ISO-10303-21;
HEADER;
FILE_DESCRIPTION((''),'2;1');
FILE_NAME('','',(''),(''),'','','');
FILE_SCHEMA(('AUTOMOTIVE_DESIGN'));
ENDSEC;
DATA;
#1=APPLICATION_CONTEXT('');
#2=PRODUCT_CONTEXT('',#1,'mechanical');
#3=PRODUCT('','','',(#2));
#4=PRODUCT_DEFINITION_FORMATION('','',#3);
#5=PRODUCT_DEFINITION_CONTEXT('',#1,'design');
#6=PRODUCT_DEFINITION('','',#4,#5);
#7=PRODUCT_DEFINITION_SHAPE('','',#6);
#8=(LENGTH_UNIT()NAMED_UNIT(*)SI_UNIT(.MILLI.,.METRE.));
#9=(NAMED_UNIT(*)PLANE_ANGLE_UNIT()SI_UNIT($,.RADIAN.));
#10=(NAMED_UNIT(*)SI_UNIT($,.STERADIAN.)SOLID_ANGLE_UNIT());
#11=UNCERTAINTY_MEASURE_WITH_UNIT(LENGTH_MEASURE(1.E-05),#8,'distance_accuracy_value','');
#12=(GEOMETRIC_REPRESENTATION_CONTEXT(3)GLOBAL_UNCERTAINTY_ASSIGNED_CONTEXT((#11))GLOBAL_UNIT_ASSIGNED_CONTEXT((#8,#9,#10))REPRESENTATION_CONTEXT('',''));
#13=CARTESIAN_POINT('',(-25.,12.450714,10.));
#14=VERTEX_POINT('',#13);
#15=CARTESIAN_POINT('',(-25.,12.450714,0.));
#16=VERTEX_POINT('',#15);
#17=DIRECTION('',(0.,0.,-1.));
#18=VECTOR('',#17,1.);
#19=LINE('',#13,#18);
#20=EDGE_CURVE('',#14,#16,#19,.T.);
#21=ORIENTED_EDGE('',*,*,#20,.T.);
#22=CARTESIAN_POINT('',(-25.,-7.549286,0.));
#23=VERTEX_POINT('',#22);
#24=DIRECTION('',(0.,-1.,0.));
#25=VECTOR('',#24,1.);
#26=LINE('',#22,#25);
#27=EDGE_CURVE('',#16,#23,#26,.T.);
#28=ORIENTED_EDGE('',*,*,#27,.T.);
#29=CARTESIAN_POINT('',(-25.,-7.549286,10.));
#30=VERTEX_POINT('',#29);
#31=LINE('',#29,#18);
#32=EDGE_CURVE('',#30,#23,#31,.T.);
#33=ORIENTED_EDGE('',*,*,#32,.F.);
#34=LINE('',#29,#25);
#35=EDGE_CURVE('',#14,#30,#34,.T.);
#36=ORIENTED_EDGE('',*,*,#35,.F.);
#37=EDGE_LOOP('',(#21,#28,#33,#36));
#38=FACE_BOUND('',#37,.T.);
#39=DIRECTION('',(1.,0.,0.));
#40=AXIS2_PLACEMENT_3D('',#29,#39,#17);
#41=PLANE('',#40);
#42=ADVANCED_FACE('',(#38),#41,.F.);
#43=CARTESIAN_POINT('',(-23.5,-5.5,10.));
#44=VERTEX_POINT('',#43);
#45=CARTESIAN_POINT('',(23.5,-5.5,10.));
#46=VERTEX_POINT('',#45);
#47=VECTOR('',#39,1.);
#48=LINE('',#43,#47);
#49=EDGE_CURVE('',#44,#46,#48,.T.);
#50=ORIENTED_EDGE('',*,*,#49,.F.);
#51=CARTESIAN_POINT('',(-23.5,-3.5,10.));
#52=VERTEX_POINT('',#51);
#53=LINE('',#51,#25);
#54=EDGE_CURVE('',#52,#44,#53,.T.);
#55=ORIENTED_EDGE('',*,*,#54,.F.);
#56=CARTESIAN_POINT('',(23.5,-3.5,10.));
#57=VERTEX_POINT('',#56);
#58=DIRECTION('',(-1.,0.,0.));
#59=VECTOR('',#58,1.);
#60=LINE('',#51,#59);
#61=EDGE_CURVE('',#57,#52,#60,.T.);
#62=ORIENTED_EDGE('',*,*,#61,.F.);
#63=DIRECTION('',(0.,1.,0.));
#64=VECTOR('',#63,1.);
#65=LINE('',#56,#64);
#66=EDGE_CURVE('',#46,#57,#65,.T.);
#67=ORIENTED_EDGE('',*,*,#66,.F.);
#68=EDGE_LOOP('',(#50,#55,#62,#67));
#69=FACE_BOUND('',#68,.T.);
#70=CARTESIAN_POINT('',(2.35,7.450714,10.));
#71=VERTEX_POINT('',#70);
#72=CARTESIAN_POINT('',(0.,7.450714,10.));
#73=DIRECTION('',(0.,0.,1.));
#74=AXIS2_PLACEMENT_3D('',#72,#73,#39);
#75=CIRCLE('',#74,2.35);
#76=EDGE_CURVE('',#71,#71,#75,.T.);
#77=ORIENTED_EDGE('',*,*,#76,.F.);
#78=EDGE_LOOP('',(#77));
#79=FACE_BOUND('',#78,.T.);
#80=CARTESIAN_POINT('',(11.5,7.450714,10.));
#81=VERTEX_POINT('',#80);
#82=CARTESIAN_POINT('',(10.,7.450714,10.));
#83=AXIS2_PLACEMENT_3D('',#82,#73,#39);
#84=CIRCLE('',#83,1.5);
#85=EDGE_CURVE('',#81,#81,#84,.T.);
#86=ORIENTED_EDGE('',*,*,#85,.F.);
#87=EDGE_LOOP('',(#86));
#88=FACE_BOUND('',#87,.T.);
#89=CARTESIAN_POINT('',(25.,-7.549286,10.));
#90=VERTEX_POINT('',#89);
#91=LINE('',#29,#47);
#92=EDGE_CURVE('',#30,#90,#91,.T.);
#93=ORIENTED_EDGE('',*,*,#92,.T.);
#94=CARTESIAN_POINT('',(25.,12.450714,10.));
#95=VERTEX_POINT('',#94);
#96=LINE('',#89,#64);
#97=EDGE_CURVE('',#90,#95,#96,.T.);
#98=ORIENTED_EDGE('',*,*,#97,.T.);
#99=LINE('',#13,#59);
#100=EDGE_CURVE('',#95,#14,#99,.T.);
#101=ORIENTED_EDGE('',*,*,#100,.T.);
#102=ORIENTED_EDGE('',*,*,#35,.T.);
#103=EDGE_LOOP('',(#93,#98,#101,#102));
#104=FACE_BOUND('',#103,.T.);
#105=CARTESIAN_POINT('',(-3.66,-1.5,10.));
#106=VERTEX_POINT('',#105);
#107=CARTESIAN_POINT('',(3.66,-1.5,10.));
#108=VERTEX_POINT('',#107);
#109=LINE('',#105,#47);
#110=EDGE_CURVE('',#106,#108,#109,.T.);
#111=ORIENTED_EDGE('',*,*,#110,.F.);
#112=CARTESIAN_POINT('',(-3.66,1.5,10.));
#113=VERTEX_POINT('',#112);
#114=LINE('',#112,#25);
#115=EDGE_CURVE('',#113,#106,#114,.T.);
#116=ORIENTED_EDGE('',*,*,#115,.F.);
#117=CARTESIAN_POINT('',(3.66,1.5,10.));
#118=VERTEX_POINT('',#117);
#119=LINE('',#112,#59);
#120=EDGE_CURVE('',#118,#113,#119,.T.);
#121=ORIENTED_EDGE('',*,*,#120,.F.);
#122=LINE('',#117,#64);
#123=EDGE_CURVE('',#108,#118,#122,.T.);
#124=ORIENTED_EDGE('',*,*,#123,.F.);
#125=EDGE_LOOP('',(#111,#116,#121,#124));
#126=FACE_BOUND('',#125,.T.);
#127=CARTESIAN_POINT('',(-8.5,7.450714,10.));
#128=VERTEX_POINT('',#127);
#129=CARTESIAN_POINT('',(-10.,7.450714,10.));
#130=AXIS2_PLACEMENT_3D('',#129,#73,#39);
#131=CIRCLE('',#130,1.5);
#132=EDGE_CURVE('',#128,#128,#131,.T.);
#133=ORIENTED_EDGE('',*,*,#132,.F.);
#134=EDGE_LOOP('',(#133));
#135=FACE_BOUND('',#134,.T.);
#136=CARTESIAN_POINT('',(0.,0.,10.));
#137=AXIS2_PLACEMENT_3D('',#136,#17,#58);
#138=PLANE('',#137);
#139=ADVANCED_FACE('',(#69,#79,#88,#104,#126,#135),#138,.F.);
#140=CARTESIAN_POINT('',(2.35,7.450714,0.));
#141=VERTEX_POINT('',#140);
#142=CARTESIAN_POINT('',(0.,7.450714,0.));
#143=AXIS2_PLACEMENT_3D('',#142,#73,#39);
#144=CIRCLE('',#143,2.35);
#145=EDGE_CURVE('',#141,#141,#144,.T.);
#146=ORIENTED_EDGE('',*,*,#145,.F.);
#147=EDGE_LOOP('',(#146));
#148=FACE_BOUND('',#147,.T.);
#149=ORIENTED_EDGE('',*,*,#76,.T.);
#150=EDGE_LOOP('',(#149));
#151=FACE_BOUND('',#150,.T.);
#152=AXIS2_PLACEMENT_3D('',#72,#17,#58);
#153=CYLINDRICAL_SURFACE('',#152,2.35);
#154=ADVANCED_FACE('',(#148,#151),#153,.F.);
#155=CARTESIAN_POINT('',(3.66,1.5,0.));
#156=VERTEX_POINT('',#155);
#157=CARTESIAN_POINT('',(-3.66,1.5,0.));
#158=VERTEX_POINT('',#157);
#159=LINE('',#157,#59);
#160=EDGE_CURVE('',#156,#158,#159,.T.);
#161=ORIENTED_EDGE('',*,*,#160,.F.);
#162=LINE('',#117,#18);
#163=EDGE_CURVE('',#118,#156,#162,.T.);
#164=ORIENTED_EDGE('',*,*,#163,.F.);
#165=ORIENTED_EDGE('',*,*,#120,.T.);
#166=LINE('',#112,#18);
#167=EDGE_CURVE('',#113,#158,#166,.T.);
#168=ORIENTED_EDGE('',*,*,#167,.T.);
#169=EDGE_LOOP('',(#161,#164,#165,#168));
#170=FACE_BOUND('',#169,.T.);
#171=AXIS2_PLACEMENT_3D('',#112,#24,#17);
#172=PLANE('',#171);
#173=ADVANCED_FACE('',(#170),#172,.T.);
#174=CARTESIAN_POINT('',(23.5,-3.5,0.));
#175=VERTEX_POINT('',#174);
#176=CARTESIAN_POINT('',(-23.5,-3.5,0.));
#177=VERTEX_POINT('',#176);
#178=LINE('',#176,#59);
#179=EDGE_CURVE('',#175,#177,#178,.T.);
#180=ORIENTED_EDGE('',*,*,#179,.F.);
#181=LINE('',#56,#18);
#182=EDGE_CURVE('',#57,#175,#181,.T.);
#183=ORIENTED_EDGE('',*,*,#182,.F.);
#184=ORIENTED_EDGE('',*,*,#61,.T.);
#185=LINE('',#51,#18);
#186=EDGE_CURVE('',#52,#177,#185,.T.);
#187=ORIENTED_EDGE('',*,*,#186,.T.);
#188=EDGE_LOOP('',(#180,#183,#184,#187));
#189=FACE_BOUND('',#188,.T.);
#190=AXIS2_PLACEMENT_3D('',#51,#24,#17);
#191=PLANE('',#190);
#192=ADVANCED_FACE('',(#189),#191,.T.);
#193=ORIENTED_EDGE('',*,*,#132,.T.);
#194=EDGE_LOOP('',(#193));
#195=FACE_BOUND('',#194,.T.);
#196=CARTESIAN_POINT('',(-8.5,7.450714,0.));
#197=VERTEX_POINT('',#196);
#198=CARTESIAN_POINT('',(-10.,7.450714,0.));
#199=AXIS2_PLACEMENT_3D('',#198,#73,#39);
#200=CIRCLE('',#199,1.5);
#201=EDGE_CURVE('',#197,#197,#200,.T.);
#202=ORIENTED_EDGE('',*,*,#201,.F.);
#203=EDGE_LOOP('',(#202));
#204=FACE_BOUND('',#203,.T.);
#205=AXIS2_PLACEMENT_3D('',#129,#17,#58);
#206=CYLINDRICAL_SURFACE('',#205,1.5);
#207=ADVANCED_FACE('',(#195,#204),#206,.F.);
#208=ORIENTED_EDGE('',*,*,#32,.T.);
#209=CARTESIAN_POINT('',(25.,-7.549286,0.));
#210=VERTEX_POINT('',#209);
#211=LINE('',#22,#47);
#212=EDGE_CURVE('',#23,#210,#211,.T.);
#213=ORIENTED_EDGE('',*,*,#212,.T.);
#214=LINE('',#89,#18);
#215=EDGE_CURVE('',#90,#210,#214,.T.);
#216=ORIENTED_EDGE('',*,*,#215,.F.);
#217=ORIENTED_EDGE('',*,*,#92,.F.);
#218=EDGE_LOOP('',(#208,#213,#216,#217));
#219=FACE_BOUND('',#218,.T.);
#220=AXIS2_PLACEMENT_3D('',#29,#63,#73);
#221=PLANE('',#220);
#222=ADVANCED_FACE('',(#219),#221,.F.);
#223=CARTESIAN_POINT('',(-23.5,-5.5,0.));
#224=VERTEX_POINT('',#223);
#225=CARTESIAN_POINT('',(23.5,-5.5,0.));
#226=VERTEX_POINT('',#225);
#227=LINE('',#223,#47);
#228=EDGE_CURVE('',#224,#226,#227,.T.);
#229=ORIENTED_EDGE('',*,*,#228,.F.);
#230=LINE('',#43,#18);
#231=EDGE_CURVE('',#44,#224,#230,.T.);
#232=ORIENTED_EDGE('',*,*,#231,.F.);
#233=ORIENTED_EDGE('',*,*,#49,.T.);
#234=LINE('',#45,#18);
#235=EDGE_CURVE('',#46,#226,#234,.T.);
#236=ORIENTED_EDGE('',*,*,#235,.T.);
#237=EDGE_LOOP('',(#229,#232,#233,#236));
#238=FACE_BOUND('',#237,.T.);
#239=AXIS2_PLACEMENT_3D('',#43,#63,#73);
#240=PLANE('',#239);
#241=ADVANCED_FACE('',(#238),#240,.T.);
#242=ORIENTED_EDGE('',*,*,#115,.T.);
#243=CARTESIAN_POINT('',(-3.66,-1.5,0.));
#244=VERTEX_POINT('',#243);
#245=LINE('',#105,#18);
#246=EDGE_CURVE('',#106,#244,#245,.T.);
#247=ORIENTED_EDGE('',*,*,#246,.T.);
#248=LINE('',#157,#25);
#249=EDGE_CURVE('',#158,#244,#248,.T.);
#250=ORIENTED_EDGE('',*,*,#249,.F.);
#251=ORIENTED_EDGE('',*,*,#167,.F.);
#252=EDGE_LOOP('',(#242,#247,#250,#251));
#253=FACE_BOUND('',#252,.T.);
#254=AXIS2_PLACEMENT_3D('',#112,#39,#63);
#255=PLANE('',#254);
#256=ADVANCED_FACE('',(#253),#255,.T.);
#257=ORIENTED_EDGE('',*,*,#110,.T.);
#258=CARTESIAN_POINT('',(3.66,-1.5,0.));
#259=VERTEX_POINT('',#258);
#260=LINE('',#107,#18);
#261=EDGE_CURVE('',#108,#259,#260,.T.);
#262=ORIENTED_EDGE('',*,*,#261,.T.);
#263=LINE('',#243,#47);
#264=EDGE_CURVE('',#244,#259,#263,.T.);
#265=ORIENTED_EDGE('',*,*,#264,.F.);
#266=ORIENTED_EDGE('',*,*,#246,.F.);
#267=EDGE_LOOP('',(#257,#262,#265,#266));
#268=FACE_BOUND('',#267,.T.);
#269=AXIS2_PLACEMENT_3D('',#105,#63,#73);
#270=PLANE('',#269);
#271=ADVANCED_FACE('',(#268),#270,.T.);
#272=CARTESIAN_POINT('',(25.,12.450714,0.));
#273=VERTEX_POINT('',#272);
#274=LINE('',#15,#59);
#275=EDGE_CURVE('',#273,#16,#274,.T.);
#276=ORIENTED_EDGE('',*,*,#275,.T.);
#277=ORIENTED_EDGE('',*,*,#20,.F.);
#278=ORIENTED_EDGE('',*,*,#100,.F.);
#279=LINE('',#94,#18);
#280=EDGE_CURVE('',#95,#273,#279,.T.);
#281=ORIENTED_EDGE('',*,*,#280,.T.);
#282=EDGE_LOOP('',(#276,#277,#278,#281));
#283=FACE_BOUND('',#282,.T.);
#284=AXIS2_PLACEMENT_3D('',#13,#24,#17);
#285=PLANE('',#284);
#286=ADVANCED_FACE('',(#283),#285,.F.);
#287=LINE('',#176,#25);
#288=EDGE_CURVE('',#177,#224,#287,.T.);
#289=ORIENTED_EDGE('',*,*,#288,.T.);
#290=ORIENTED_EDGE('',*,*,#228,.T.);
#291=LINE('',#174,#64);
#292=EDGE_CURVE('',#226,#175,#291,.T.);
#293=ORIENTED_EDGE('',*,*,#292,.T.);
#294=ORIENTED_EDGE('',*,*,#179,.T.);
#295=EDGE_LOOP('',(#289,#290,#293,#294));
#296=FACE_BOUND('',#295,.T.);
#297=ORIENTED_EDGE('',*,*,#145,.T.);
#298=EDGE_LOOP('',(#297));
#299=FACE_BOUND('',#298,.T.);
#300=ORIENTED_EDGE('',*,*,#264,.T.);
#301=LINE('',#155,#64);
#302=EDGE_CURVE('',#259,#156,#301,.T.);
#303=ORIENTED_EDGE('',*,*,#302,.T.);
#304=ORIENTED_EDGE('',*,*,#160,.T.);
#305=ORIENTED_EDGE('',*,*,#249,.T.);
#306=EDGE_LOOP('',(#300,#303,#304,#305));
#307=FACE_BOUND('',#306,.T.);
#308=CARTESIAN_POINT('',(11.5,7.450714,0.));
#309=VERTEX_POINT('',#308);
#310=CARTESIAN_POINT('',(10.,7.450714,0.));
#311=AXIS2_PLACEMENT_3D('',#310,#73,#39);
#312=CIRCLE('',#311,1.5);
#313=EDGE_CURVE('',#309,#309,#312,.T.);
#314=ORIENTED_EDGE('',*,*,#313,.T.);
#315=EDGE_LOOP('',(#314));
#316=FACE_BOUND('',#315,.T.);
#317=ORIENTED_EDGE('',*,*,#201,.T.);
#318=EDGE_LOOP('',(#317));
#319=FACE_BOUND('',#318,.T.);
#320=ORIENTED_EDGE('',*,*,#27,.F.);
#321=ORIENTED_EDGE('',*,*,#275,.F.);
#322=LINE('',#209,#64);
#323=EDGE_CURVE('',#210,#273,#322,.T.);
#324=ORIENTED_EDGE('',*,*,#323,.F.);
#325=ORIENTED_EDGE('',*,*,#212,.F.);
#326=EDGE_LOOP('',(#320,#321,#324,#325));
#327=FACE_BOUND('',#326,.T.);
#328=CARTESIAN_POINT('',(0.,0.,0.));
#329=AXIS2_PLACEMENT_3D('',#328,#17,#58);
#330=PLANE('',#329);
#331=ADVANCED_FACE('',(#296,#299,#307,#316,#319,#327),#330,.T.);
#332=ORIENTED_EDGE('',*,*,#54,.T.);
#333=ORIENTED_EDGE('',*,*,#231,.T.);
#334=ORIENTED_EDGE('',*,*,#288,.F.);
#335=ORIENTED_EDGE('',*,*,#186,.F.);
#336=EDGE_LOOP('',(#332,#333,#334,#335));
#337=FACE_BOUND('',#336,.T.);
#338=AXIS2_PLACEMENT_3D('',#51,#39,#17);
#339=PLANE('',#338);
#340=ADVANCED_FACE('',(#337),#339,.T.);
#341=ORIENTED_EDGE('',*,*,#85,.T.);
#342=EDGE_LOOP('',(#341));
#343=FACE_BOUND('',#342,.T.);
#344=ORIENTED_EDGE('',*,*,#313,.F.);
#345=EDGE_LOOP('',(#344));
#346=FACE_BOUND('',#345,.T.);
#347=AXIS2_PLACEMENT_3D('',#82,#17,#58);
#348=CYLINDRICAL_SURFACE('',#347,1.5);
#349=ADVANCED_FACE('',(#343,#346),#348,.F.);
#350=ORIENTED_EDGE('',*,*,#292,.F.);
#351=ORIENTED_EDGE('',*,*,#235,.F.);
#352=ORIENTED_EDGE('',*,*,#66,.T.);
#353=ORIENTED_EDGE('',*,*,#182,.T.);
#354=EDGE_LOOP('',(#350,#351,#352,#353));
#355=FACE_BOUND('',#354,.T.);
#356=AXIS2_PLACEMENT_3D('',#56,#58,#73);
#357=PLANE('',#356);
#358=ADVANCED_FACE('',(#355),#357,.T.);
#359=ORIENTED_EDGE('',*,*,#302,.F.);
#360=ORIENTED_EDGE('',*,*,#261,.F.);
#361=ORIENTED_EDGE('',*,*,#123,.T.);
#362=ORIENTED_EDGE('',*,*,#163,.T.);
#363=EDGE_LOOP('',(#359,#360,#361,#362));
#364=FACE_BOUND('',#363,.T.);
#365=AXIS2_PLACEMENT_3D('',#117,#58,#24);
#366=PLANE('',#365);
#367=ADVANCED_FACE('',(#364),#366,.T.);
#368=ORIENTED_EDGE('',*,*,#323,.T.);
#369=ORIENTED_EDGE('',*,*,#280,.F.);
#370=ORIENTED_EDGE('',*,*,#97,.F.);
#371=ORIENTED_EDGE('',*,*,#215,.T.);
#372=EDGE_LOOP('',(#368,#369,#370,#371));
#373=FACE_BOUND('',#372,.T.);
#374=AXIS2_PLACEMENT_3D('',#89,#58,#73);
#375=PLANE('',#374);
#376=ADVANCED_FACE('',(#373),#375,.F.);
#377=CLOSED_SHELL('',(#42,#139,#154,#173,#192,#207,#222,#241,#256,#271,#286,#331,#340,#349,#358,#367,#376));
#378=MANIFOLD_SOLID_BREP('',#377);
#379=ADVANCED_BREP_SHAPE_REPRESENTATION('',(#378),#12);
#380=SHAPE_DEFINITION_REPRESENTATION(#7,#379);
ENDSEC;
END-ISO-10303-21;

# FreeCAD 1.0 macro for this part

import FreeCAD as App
import Part
import Sketcher

doc = App.newDocument("Part")
body = doc.addObject("PartDesign::Body", "Body")

sketch1 = doc.addObject("Sketcher::SketchObject", "Sketch")
body.addObject(sketch1)
sketch1.AttachmentSupport = (doc.XY_Plane, [""])
sketch1.MapMode = "FlatFace"
sketch1.addGeometry([
    Part.LineSegment(App.Vector(-25, 12.5, 0), App.Vector(-25, -7.5, 0)),
    Part.LineSegment(App.Vector(-25, -7.5, 0), App.Vector(25, -7.5, 0)),
    Part.LineSegment(App.Vector(25, -7.5, 0), App.Vector(25, 12.5, 0)),
    Part.LineSegment(App.Vector(25, 12.5, 0), App.Vector(-25, 12.5, 0)),
    Part.LineSegment(App.Vector(23.5, -5.5, 0), App.Vector(-23.5, -5.5, 0)),
    Part.LineSegment(App.Vector(-23.5, -5.5, 0), App.Vector(-23.5, -3.5, 0)),
    Part.LineSegment(App.Vector(-23.5, -3.5, 0), App.Vector(23.5, -3.5, 0)),
    Part.LineSegment(App.Vector(23.5, -3.5, 0), App.Vector(23.5, -5.5, 0)),
    Part.LineSegment(App.Vector(3.7, -1.5, 0), App.Vector(-3.7, -1.5, 0)),
    Part.LineSegment(App.Vector(-3.7, -1.5, 0), App.Vector(-3.7, 1.5, 0)),
    Part.LineSegment(App.Vector(-3.7, 1.5, 0), App.Vector(3.7, 1.5, 0)),
    Part.LineSegment(App.Vector(3.7, 1.5, 0), App.Vector(3.7, -1.5, 0)),
    Part.Circle(App.Vector(-10, 7.5, 0), App.Vector(0, 0, 1), 1.5),
    Part.Circle(App.Vector(0, 7.5, 0), App.Vector(0, 0, 1), 2.4),
    Part.Circle(App.Vector(10, 7.5, 0), App.Vector(0, 0, 1), 1.5),
], False)
sketch1.addConstraint([
    Sketcher.Constraint("Coincident", 0, 2, 1, 1),
    Sketcher.Constraint("Coincident", 1, 2, 2, 1),
    Sketcher.Constraint("Coincident", 2, 2, 3, 1),
    Sketcher.Constraint("Coincident", 3, 2, 0, 1),
    Sketcher.Constraint("Coincident", 4, 2, 5, 1),
    Sketcher.Constraint("Coincident", 5, 2, 6, 1),
    Sketcher.Constraint("Coincident", 6, 2, 7, 1),
    Sketcher.Constraint("Coincident", 7, 2, 4, 1),
    Sketcher.Constraint("Coincident", 8, 2, 9, 1),
    Sketcher.Constraint("Coincident", 9, 2, 10, 1),
    Sketcher.Constraint("Coincident", 10, 2, 11, 1),
    Sketcher.Constraint("Coincident", 11, 2, 8, 1),
    Sketcher.Constraint("Vertical", 0),
    Sketcher.Constraint("Horizontal", 1),
    Sketcher.Constraint("Vertical", 2),
    Sketcher.Constraint("Horizontal", 3),
    Sketcher.Constraint("Horizontal", 4),
    Sketcher.Constraint("Vertical", 5),
    Sketcher.Constraint("Horizontal", 6),
    Sketcher.Constraint("Vertical", 7),
    Sketcher.Constraint("Horizontal", 8),
    Sketcher.Constraint("Vertical", 9),
    Sketcher.Constraint("Horizontal", 10),
    Sketcher.Constraint("Vertical", 11),
    Sketcher.Constraint("Equal", 12, 14),
    Sketcher.Constraint("Symmetric", 8, 2, 10, 2, -1, 1),
    Sketcher.Constraint("Symmetric", 12, 3, 14, 3, -2),
    Sketcher.Constraint("PointOnObject", 13, 3, -2),
    Sketcher.Constraint("Horizontal", 12, 3, 13, 3),
    Sketcher.Constraint("Diameter", 12, 3.0),
    Sketcher.Constraint("Diameter", 13, 4.7),
    Sketcher.Constraint("DistanceX", 1, 1, 1, 2, 50.0),
    Sketcher.Constraint("DistanceX", 4, 2, 4, 1, 47.0),
    Sketcher.Constraint("DistanceY", 0, 2, 0, 1, 20.0),
    Sketcher.Constraint("DistanceY", 5, 1, 5, 2, 2.0),
    Sketcher.Constraint("DistanceY", 9, 1, 9, 2, 3.0),
    Sketcher.Constraint("DistanceX", 12, 3, -1, 1, 10.0),
    Sketcher.Constraint("DistanceX", 0, 2, -1, 1, 25.0),
    Sketcher.Constraint("DistanceY", 0, 2, 12, 3, 15.0),
    Sketcher.Constraint("DistanceY", 5, 2, 8, 2, 2.0),
    Sketcher.Constraint("DistanceX", 8, 2, 8, 1, 7.32),
    Sketcher.Constraint("DistanceX", 4, 2, -1, 1, 23.5),
    Sketcher.Constraint("DistanceY", -1, 1, 12, 3, 7.450714),
])
pad1 = doc.addObject("PartDesign::Pad", "Pad")
body.addObject(pad1)
pad1.Profile = sketch1
pad1.Length = 10

doc.recompute()
